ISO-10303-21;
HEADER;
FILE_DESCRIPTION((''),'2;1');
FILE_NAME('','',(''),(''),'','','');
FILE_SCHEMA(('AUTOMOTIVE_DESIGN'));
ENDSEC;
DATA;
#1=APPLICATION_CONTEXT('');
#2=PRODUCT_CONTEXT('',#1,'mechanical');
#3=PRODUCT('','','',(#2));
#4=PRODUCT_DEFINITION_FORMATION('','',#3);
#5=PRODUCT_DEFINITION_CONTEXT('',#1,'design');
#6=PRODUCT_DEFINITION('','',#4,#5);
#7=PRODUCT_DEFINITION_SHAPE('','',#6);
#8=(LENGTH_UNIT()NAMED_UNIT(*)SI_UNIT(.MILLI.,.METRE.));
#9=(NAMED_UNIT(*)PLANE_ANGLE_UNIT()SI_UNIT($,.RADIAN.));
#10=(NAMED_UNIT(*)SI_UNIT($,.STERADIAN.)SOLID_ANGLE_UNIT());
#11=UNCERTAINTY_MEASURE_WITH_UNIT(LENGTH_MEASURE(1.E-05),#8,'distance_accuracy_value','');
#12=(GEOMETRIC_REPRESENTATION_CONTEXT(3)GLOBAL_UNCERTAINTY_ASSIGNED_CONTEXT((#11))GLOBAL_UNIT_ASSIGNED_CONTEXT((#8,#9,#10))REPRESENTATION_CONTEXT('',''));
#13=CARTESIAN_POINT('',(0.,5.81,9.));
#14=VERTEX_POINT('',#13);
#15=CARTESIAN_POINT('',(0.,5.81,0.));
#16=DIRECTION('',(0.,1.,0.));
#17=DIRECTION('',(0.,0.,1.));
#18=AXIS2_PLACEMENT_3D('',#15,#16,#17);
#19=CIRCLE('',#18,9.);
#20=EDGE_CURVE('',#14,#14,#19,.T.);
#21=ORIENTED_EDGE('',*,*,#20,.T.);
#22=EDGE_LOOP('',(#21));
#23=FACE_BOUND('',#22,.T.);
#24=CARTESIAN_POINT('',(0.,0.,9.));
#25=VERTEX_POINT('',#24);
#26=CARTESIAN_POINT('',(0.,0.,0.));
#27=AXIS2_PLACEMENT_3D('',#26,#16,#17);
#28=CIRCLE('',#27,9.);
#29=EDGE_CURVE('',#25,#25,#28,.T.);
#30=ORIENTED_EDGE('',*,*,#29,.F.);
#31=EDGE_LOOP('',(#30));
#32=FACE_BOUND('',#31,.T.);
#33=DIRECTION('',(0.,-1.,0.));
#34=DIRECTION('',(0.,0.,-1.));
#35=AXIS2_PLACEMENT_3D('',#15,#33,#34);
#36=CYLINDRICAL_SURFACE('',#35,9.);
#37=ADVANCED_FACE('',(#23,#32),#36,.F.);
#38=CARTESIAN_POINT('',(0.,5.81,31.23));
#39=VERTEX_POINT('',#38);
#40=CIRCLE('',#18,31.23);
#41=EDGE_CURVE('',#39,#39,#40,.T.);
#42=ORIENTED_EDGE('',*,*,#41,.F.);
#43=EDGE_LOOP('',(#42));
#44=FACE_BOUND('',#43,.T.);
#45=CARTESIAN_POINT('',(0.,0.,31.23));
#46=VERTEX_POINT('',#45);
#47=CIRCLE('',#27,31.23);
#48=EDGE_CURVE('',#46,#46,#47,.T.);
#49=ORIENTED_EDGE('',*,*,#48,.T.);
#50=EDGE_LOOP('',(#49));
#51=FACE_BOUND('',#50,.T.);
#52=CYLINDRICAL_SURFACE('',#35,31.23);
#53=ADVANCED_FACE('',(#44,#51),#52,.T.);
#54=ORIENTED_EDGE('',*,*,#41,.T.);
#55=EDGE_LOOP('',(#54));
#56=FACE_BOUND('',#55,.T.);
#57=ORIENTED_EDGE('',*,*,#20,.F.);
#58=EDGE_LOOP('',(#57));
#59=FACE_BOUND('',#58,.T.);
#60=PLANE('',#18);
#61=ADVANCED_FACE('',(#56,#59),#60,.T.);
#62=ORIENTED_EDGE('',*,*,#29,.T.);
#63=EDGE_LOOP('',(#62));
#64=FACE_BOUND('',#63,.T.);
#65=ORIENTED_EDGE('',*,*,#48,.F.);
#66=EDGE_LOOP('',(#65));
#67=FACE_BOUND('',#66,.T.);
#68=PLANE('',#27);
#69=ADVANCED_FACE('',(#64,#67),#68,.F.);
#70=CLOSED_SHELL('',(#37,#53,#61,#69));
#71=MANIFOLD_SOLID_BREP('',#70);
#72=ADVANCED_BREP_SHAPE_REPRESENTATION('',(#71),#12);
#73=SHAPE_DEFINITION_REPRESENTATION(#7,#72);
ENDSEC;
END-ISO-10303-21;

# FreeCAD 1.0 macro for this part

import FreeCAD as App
import Part
import Sketcher
from FreeCAD import Vector

doc = App.newDocument("Part")
body = doc.addObject("PartDesign::Body", "Body")

sketch1 = doc.addObject("Sketcher::SketchObject", "Sketch")
body.addObject(sketch1)
sketch1.AttachmentSupport = (doc.XZ_Plane, [""])
sketch1.MapMode = "FlatFace"
sketch1.addGeometry([
    Part.Circle(Vector(0, 0, 0), Vector(0, 0, 1), 31),
    Part.Circle(Vector(0, 0, 0), Vector(0, 0, 1), 9),
], False)
sketch1.addConstraint([
    Sketcher.Constraint("Coincident", 0, 3, -1, 1),
    Sketcher.Constraint("Coincident", 1, 3, -1, 1),
    Sketcher.Constraint("Diameter", 1, 18.0),
    Sketcher.Constraint("Diameter", 0, 62.46),
])
pad1 = doc.addObject("PartDesign::Pad", "Pad")
body.addObject(pad1)
pad1.Profile = sketch1
pad1.Length = 5.81
pad1.Reversed = True

doc.recompute()
